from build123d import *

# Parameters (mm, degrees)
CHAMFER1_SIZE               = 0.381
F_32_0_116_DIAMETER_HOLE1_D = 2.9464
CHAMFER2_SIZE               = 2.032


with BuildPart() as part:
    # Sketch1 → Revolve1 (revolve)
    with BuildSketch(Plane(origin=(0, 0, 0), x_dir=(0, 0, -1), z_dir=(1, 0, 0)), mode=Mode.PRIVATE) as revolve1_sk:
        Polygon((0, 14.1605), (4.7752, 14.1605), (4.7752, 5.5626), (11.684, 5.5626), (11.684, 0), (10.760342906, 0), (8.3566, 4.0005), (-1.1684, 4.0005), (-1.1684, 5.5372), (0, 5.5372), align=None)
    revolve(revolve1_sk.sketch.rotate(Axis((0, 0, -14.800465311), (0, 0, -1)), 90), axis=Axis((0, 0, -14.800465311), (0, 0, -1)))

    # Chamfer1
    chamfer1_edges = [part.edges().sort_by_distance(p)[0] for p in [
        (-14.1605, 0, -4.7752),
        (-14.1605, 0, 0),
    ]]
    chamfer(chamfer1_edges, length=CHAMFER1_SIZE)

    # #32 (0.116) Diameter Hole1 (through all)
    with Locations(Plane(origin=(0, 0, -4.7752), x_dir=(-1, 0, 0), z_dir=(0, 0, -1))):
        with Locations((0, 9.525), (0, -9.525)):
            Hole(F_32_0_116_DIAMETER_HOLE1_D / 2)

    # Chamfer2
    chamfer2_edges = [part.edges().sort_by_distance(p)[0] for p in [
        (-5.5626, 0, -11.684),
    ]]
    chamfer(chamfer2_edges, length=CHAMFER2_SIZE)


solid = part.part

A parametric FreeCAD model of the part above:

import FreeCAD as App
import Part
import Sketcher

V = App.Vector
Q = App.Units.Quantity


def edges_at(feature, points):
    """Names of the edges that pass closest to the given points."""
    edges = feature.Shape.Edges
    near = lambda p: min(range(len(edges)), key=lambda i: edges[i].distToShape(Part.Vertex(*p))[0])
    return sorted({f"Edge{near(p) + 1}" for p in points})

doc = App.newDocument("Part")
body = doc.addObject("PartDesign::Body", "Body")

sketch1 = doc.addObject("Sketcher::SketchObject", "Sketch")
body.addObject(sketch1)
sketch1.AttachmentSupport = (doc.YZ_Plane, [""])
sketch1.MapMode = "FlatFace"
sketch1.addGeometry([
    Part.LineSegment(V(14.2, -4.8, 0), V(14.2, 0, 0)),
    Part.LineSegment(V(14.2, 0, 0), V(5.5, 0, 0)),
    Part.LineSegment(V(5.5, 0, 0), V(5.5, 1.2, 0)),
    Part.LineSegment(V(5.5, 1.2, 0), V(4, 1.2, 0)),
    Part.LineSegment(V(4, 1.2, 0), V(4, -8.4, 0)),
    Part.LineSegment(V(4, -8.4, 0), V(0, -10.8, 0)),
    Part.LineSegment(V(0, -10.8, 0), V(0, -11.7, 0)),
    Part.LineSegment(V(0, -11.7, 0), V(5.6, -11.7, 0)),
    Part.LineSegment(V(5.6, -11.7, 0), V(5.6, -4.8, 0)),
    Part.LineSegment(V(5.6, -4.8, 0), V(14.2, -4.8, 0)),
], False)
sketch1.addConstraint([
    Sketcher.Constraint("Coincident", 0, 2, 1, 1),
    Sketcher.Constraint("Coincident", 1, 2, 2, 1),
    Sketcher.Constraint("Coincident", 2, 2, 3, 1),
    Sketcher.Constraint("Coincident", 3, 2, 4, 1),
    Sketcher.Constraint("Coincident", 4, 2, 5, 1),
    Sketcher.Constraint("Coincident", 5, 2, 6, 1),
    Sketcher.Constraint("Coincident", 6, 2, 7, 1),
    Sketcher.Constraint("Coincident", 7, 2, 8, 1),
    Sketcher.Constraint("Coincident", 8, 2, 9, 1),
    Sketcher.Constraint("Coincident", 9, 2, 0, 1),
    Sketcher.Constraint("Vertical", 0),
    Sketcher.Constraint("Horizontal", 1),
    Sketcher.Constraint("Vertical", 2),
    Sketcher.Constraint("Horizontal", 3),
    Sketcher.Constraint("Vertical", 4),
    Sketcher.Constraint("Vertical", 6),
    Sketcher.Constraint("Horizontal", 7),
    Sketcher.Constraint("Vertical", 8),
    Sketcher.Constraint("Horizontal", 9),
    Sketcher.Constraint("PointOnObject", 0, 2, -1),
    Sketcher.Constraint("PointOnObject", 5, 2, -2),
    Sketcher.Constraint("Angle", 5, Q("-149 deg")),
    Sketcher.Constraint("DistanceX", 3, 2, 0, 2, Q("0.4 in")),
    Sketcher.Constraint("DistanceX", 7, 1, 7, 2, Q("0.219 in")),
    Sketcher.Constraint("DistanceY", 0, 1, 0, 2, Q("0.188 in")),
    Sketcher.Constraint("DistanceY", 2, 1, 2, 2, Q("0.046 in")),
    Sketcher.Constraint("DistanceY", 4, 2, 4, 1, Q("0.375 in")),
    Sketcher.Constraint("DistanceY", 8, 1, 8, 2, Q("0.272 in")),
    Sketcher.Constraint("DistanceX", 1, 2, 1, 1, Q("0.3395 in")),
    Sketcher.Constraint("DistanceX", 9, 1, 9, 2, Q("0.3385 in")),
])
revolution = doc.addObject("PartDesign::Revolution", "Revolution")
body.addObject(revolution)
revolution.Profile = sketch1
revolution.ReferenceAxis = (sketch1, ["V_Axis"])
revolution.Angle = 360
doc.recompute()

chamfer = doc.addObject("PartDesign::Chamfer", "Chamfer")
body.addObject(chamfer)
chamfer.Base = (revolution, edges_at(revolution, [(-14.161, 0, -4.775), (-14.161, 0, 0)]))
chamfer.Size = Q("0.015 in")

sketch2 = doc.addObject("Sketcher::SketchObject", "Sketch001")
body.addObject(sketch2)
sketch2.AttachmentSupport = (doc.XY_Plane, [""])
sketch2.MapMode = "FlatFace"
sketch2.AttachmentOffset = App.Placement(V(0, 0, -0.188 * 25.4), App.Rotation())
sketch2.addGeometry([
    Part.Circle(V(0, 9.5, 0), V(0, 0, 1), 1.5),
    Part.Circle(V(0, -9.5, 0), V(0, 0, 1), 1.5),
], False)
sketch2.addConstraint([
    Sketcher.Constraint("Equal", 0, 1),
    Sketcher.Constraint("Symmetric", 0, 3, 1, 3, -1, 1),
    Sketcher.Constraint("PointOnObject", 0, 3, -2),
    Sketcher.Constraint("Diameter", 0, Q("0.116 in")),
    Sketcher.Constraint("DistanceY", 1, 3, 0, 3, Q("0.75 in")),
])
doc.recompute()
hole = doc.addObject("PartDesign::Hole", "Hole")
body.addObject(hole)
hole.Profile = sketch2
hole.ThreadType = "None"
hole.Diameter = Q("0.116 in")
hole.DepthType = "ThroughAll"
hole.Reversed = True
doc.recompute()

chamfer2 = doc.addObject("PartDesign::Chamfer", "Chamfer001")
body.addObject(chamfer2)
chamfer2.Base = (hole, edges_at(hole, [(-5.563, 0, -11.684)]))
chamfer2.Size = Q("0.08 in")

doc.recompute()
